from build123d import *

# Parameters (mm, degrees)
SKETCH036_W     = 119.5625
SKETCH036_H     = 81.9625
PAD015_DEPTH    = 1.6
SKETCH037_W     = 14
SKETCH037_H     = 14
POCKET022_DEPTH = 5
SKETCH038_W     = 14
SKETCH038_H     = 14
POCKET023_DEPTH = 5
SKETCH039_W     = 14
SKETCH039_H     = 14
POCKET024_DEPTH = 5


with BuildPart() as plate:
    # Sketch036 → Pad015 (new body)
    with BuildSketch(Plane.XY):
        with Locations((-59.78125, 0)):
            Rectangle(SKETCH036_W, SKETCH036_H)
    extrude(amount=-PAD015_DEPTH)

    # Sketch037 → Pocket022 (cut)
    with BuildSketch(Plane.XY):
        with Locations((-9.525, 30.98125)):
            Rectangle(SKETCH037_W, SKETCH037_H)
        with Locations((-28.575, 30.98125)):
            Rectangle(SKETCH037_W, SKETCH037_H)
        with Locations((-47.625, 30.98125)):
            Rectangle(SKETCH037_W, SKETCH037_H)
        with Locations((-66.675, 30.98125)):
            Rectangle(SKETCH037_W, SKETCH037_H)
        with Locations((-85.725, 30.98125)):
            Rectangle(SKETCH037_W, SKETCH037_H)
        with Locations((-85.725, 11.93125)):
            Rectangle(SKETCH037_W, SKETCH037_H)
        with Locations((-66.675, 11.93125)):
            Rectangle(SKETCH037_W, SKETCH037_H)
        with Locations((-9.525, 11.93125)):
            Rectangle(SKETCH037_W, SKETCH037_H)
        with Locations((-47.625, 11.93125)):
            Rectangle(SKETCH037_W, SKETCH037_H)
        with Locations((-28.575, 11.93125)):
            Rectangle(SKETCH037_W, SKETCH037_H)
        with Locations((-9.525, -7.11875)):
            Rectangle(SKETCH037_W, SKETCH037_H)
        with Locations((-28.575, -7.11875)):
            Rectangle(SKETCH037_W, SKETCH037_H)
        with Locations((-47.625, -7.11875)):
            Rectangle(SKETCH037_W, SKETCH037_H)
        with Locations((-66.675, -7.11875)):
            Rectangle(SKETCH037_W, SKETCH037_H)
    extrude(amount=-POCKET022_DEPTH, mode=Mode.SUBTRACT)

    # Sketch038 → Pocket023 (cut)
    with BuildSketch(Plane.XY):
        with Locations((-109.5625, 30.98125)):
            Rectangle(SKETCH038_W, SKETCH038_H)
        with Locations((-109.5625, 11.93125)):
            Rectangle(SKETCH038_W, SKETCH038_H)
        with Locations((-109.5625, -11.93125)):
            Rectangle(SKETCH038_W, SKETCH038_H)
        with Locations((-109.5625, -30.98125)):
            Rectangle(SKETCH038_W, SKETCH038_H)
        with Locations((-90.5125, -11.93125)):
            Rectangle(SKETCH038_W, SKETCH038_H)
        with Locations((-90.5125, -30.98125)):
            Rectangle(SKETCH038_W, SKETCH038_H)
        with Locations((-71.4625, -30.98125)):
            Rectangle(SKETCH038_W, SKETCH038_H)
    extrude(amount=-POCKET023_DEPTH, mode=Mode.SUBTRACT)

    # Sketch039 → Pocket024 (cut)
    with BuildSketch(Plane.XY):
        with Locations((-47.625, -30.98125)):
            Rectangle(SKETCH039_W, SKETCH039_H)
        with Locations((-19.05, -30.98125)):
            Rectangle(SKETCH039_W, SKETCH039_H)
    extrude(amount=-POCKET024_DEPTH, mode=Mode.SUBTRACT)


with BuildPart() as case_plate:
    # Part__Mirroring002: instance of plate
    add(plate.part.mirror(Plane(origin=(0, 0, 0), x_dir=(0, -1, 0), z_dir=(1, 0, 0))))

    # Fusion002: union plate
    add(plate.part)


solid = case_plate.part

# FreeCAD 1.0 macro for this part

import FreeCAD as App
import Part
import Sketcher
Q = App.Units.Quantity


def add_polygon(sketch, points):
    """Adds a closed chain of lines whose ends are joined by coincident constraints."""
    first, n = sketch.GeometryCount, len(points)
    for a, b in zip(points, points[1:] + points[:1]):
        sketch.addGeometry(Part.LineSegment(App.Vector(*a, 0), App.Vector(*b, 0)), False)
    for i in range(n):
        sketch.addConstraint(Sketcher.Constraint("Coincident", first + i, 2, first + (i + 1) % n, 1))

doc = App.newDocument("Part")
body = doc.addObject("PartDesign::Body", "Body")

# Sketch on XY plane
sketch1 = body.newObject("Sketcher::SketchObject", "Sketch")
sketch1.AttachmentSupport = (doc.getObject("XY_Plane"), [""])
sketch1.MapMode = "FlatFace"
add_polygon(sketch1, [(-119.5625, 40.98125), (-119.5625, -40.98125), (0, -40.98125), (0, 40.98125)])  # lines 0-3
sketch1.addConstraint([
    Sketcher.Constraint("Vertical", 0),
    Sketcher.Constraint("Horizontal", 1),
    Sketcher.Constraint("Vertical", 2),
    Sketcher.Constraint("Horizontal", 3),
    Sketcher.Constraint("Symmetric", 1, 2, 2, 2, -1, 1),
    Sketcher.Constraint("DistanceX", 1, 1, 1, 2, Q("119.5625 mm")),
    Sketcher.Constraint("DistanceY", 0, 2, 0, 1, Q("81.9625 mm")),
])
pad1 = body.newObject("PartDesign::Pad", "Pad")
pad1.Profile = sketch1
pad1.Length = 1.6
pad1.Reversed = True

# Sketch on XY plane
sketch2 = body.newObject("Sketcher::SketchObject", "Sketch001")
sketch2.AttachmentSupport = (doc.getObject("XY_Plane"), [""])
sketch2.MapMode = "FlatFace"
add_polygon(sketch2, [(-16.525, 37.98125), (-16.525, 23.98125), (-2.525, 23.98125), (-2.525, 37.98125)])  # lines 0-3
add_polygon(sketch2, [(-35.575, 37.98125), (-35.575, 23.98125), (-21.575, 23.98125), (-21.575, 37.98125)])  # lines 4-7
add_polygon(sketch2, [(-54.625, 37.98125), (-54.625, 23.98125), (-40.625, 23.98125), (-40.625, 37.98125)])  # lines 8-11
add_polygon(sketch2, [(-73.675, 37.98125), (-73.675, 23.98125), (-59.675, 23.98125), (-59.675, 37.98125)])  # lines 12-15
add_polygon(sketch2, [(-92.725, 37.98125), (-92.725, 23.98125), (-78.725, 23.98125), (-78.725, 37.98125)])  # lines 16-19
add_polygon(sketch2, [(-92.725, 18.93125), (-92.725, 4.93125), (-78.725, 4.93125), (-78.725, 18.93125)])  # lines 20-23
add_polygon(sketch2, [(-73.675, 18.93125), (-73.675, 4.93125), (-59.675, 4.93125), (-59.675, 18.93125)])  # lines 24-27
add_polygon(sketch2, [(-16.525, 18.93125), (-16.525, 4.93125), (-2.525, 4.93125), (-2.525, 18.93125)])  # lines 28-31
add_polygon(sketch2, [(-54.625, 18.93125), (-54.625, 4.93125), (-40.625, 4.93125), (-40.625, 18.93125)])  # lines 32-35
add_polygon(sketch2, [(-35.575, 18.93125), (-35.575, 4.93125), (-21.575, 4.93125), (-21.575, 18.93125)])  # lines 36-39
add_polygon(sketch2, [(-16.525, -0.11875), (-16.525, -14.11875), (-2.525, -14.11875), (-2.525, -0.11875)])  # lines 40-43
add_polygon(sketch2, [(-35.575, -0.11875), (-35.575, -14.11875), (-21.575, -14.11875), (-21.575, -0.11875)])  # lines 44-47
add_polygon(sketch2, [(-54.625, -0.11875), (-54.625, -14.11875), (-40.625, -14.11875), (-40.625, -0.11875)])  # lines 48-51
add_polygon(sketch2, [(-73.675, -0.11875), (-73.675, -14.11875), (-59.675, -14.11875), (-59.675, -0.11875)])  # lines 52-55
sketch2.addConstraint([
    Sketcher.Constraint("Vertical", 0),
    Sketcher.Constraint("Horizontal", 1),
    Sketcher.Constraint("Vertical", 2),
    Sketcher.Constraint("Horizontal", 3),
    Sketcher.Constraint("Vertical", 4),
    Sketcher.Constraint("Horizontal", 5),
    Sketcher.Constraint("Vertical", 6),
    Sketcher.Constraint("Horizontal", 7),
    Sketcher.Constraint("Vertical", 8),
    Sketcher.Constraint("Horizontal", 9),
    Sketcher.Constraint("Vertical", 10),
    Sketcher.Constraint("Horizontal", 11),
    Sketcher.Constraint("Vertical", 12),
    Sketcher.Constraint("Horizontal", 13),
    Sketcher.Constraint("Vertical", 14),
    Sketcher.Constraint("Horizontal", 15),
    Sketcher.Constraint("Vertical", 16),
    Sketcher.Constraint("Horizontal", 17),
    Sketcher.Constraint("Vertical", 18),
    Sketcher.Constraint("Horizontal", 19),
    Sketcher.Constraint("Vertical", 20),
    Sketcher.Constraint("Horizontal", 21),
    Sketcher.Constraint("Vertical", 22),
    Sketcher.Constraint("Horizontal", 23),
    Sketcher.Constraint("Vertical", 24),
    Sketcher.Constraint("Horizontal", 25),
    Sketcher.Constraint("Vertical", 26),
    Sketcher.Constraint("Horizontal", 27),
    Sketcher.Constraint("Vertical", 28),
    Sketcher.Constraint("Horizontal", 29),
    Sketcher.Constraint("Vertical", 30),
    Sketcher.Constraint("Horizontal", 31),
    Sketcher.Constraint("Vertical", 32),
    Sketcher.Constraint("Horizontal", 33),
    Sketcher.Constraint("Vertical", 34),
    Sketcher.Constraint("Horizontal", 35),
    Sketcher.Constraint("Vertical", 36),
    Sketcher.Constraint("Horizontal", 37),
    Sketcher.Constraint("Vertical", 38),
    Sketcher.Constraint("Horizontal", 39),
    Sketcher.Constraint("Vertical", 40),
    Sketcher.Constraint("Horizontal", 41),
    Sketcher.Constraint("Vertical", 42),
    Sketcher.Constraint("Horizontal", 43),
    Sketcher.Constraint("Vertical", 44),
    Sketcher.Constraint("Horizontal", 45),
    Sketcher.Constraint("Vertical", 46),
    Sketcher.Constraint("Horizontal", 47),
    Sketcher.Constraint("Vertical", 48),
    Sketcher.Constraint("Horizontal", 49),
    Sketcher.Constraint("Vertical", 50),
    Sketcher.Constraint("Horizontal", 51),
    Sketcher.Constraint("Vertical", 52),
    Sketcher.Constraint("Horizontal", 53),
    Sketcher.Constraint("Vertical", 54),
    Sketcher.Constraint("Horizontal", 55),
    Sketcher.Constraint("Horizontal", 1, 2, 4, 2),
    Sketcher.Constraint("Horizontal", 3, 2, 6, 2),
    Sketcher.Constraint("Horizontal", 5, 2, 8, 2),
    Sketcher.Constraint("Horizontal", 7, 2, 10, 2),
    Sketcher.Constraint("Horizontal", 9, 2, 12, 2),
    Sketcher.Constraint("Horizontal", 11, 2, 14, 2),
    Sketcher.Constraint("Horizontal", 13, 2, 16, 2),
    Sketcher.Constraint("Horizontal", 15, 2, 18, 2),
    Sketcher.Constraint("Horizontal", 21, 2, 24, 2),
    Sketcher.Constraint("Horizontal", 23, 2, 26, 2),
    Sketcher.Constraint("Horizontal", 25, 2, 28, 2),
    Sketcher.Constraint("Horizontal", 27, 2, 30, 2),
    Sketcher.Constraint("Horizontal", 29, 2, 32, 2),
    Sketcher.Constraint("Horizontal", 31, 2, 34, 2),
    Sketcher.Constraint("Horizontal", 33, 2, 36, 2),
    Sketcher.Constraint("Horizontal", 35, 2, 38, 2),
    Sketcher.Constraint("Horizontal", 41, 2, 44, 2),
    Sketcher.Constraint("Horizontal", 43, 2, 46, 2),
    Sketcher.Constraint("Horizontal", 45, 2, 48, 2),
    Sketcher.Constraint("Horizontal", 47, 2, 50, 2),
    Sketcher.Constraint("Horizontal", 49, 2, 52, 2),
    Sketcher.Constraint("Horizontal", 51, 2, 54, 2),
    Sketcher.Constraint("Vertical", 19, 2, 20, 2),
    Sketcher.Constraint("Vertical", 18, 2, 21, 2),
    Sketcher.Constraint("Vertical", 15, 2, 24, 2),
    Sketcher.Constraint("Vertical", 14, 2, 25, 2),
    Sketcher.Constraint("Vertical", 3, 2, 28, 2),
    Sketcher.Constraint("Vertical", 2, 2, 29, 2),
    Sketcher.Constraint("Vertical", 11, 2, 32, 2),
    Sketcher.Constraint("Vertical", 10, 2, 33, 2),
    Sketcher.Constraint("Vertical", 7, 2, 36, 2),
    Sketcher.Constraint("Vertical", 6, 2, 37, 2),
    Sketcher.Constraint("Vertical", 31, 2, 40, 2),
    Sketcher.Constraint("Vertical", 30, 2, 41, 2),
    Sketcher.Constraint("Vertical", 39, 2, 44, 2),
    Sketcher.Constraint("Vertical", 38, 2, 45, 2),
    Sketcher.Constraint("Vertical", 35, 2, 48, 2),
    Sketcher.Constraint("Vertical", 34, 2, 49, 2),
    Sketcher.Constraint("Vertical", 27, 2, 52, 2),
    Sketcher.Constraint("Vertical", 26, 2, 53, 2),
    Sketcher.Constraint("Equal", 3, 5),
    Sketcher.Constraint("Equal", 7, 9),
    Sketcher.Constraint("Equal", 11, 13),
    Sketcher.Constraint("Equal", 15, 17),
    Sketcher.Constraint("Equal", 55, 0),
    Sketcher.Constraint("Equal", 18, 20),
    Sketcher.Constraint("Equal", 38, 40),
    Sketcher.Constraint("DistanceX", 1, 1, 1, 2, Q("14 mm")),
    Sketcher.Constraint("DistanceX", 8, 2, 0, 2, Q("38.1 mm")),
    Sketcher.Constraint("DistanceX", 12, 2, 4, 2, Q("38.1 mm")),
    Sketcher.Constraint("DistanceX", 16, 2, 8, 2, Q("38.1 mm")),
    Sketcher.Constraint("DistanceX", 4, 2, 0, 2, Q("19.05 mm")),
    Sketcher.Constraint("DistanceY", 20, 2, 16, 2, Q("19.05 mm")),
    Sketcher.Constraint("DistanceY", 40, 2, 28, 2, Q("19.05 mm")),
    Sketcher.Constraint("DistanceX", 0, 2, -1, 1, Q("16.525 mm")),
    Sketcher.Constraint("DistanceY", -1, 1, 0, 2, Q("23.98125 mm")),
])
pocket1 = body.newObject("PartDesign::Pocket", "Pocket")
pocket1.Profile = sketch2
pocket1.Length = 5

# Sketch on XY plane
sketch3 = body.newObject("Sketcher::SketchObject", "Sketch002")
sketch3.AttachmentSupport = (doc.getObject("XY_Plane"), [""])
sketch3.MapMode = "FlatFace"
add_polygon(sketch3, [(-116.5625, 37.98125), (-116.5625, 23.98125), (-102.5625, 23.98125), (-102.5625, 37.98125)])  # lines 0-3
add_polygon(sketch3, [(-116.5625, 18.93125), (-116.5625, 4.93125), (-102.5625, 4.93125), (-102.5625, 18.93125)])  # lines 4-7
add_polygon(sketch3, [(-116.5625, -4.93125), (-116.5625, -18.93125), (-102.5625, -18.93125), (-102.5625, -4.93125)])  # lines 8-11
add_polygon(sketch3, [(-116.5625, -23.98125), (-116.5625, -37.98125), (-102.5625, -37.98125), (-102.5625, -23.98125)])  # lines 12-15
add_polygon(sketch3, [(-97.5125, -4.93125), (-97.5125, -18.93125), (-83.5125, -18.93125), (-83.5125, -4.93125)])  # lines 16-19
add_polygon(sketch3, [(-97.5125, -23.98125), (-97.5125, -37.98125), (-83.5125, -37.98125), (-83.5125, -23.98125)])  # lines 20-23
add_polygon(sketch3, [(-78.4625, -23.98125), (-78.4625, -37.98125), (-64.4625, -37.98125), (-64.4625, -23.98125)])  # lines 24-27
sketch3.addConstraint([
    Sketcher.Constraint("Vertical", 0),
    Sketcher.Constraint("Horizontal", 1),
    Sketcher.Constraint("Vertical", 2),
    Sketcher.Constraint("Horizontal", 3),
    Sketcher.Constraint("Vertical", 4),
    Sketcher.Constraint("Horizontal", 5),
    Sketcher.Constraint("Vertical", 6),
    Sketcher.Constraint("Horizontal", 7),
    Sketcher.Constraint("Vertical", 8),
    Sketcher.Constraint("Horizontal", 9),
    Sketcher.Constraint("Vertical", 10),
    Sketcher.Constraint("Horizontal", 11),
    Sketcher.Constraint("Vertical", 12),
    Sketcher.Constraint("Horizontal", 13),
    Sketcher.Constraint("Vertical", 14),
    Sketcher.Constraint("Horizontal", 15),
    Sketcher.Constraint("Vertical", 16),
    Sketcher.Constraint("Horizontal", 17),
    Sketcher.Constraint("Vertical", 18),
    Sketcher.Constraint("Horizontal", 19),
    Sketcher.Constraint("Vertical", 20),
    Sketcher.Constraint("Horizontal", 21),
    Sketcher.Constraint("Vertical", 22),
    Sketcher.Constraint("Horizontal", 23),
    Sketcher.Constraint("Vertical", 24),
    Sketcher.Constraint("Horizontal", 25),
    Sketcher.Constraint("Vertical", 26),
    Sketcher.Constraint("Horizontal", 27),
    Sketcher.Constraint("Symmetric", 7, 2, 8, 2, -1),
    Sketcher.Constraint("Symmetric", 5, 2, 10, 2, -1),
    Sketcher.Constraint("Symmetric", 3, 2, 12, 2, -1),
    Sketcher.Constraint("Symmetric", 1, 2, 14, 2, -1),
    Sketcher.Constraint("Horizontal", 9, 2, 16, 2),
    Sketcher.Constraint("Horizontal", 11, 2, 18, 2),
    Sketcher.Constraint("Horizontal", 13, 2, 20, 2),
    Sketcher.Constraint("Horizontal", 15, 2, 22, 2),
    Sketcher.Constraint("Horizontal", 21, 2, 24, 2),
    Sketcher.Constraint("Horizontal", 23, 2, 26, 2),
    Sketcher.Constraint("Vertical", 3, 2, 4, 2),
    Sketcher.Constraint("Vertical", 2, 2, 5, 2),
    Sketcher.Constraint("Vertical", 19, 2, 20, 2),
    Sketcher.Constraint("Vertical", 18, 2, 21, 2),
    Sketcher.Constraint("Equal", 15, 17),
    Sketcher.Constraint("Equal", 23, 25),
    Sketcher.Constraint("Equal", 27, 0),
    Sketcher.Constraint("Equal", 2, 4),
    Sketcher.Constraint("DistanceX", 1, 1, 1, 2, Q("14 mm")),
    Sketcher.Constraint("DistanceY", 4, 2, 0, 2, Q("19.05 mm")),
    Sketcher.Constraint("DistanceX", 9, 2, 16, 2, Q("5.05 mm")),
    Sketcher.Constraint("DistanceX", 21, 2, 24, 2, Q("5.05 mm")),
    Sketcher.Constraint("DistanceX", 0, 2, -1, 1, Q("116.5625 mm")),
    Sketcher.Constraint("DistanceY", 8, 2, 4, 2, Q("23.8625 mm")),
])
pocket2 = body.newObject("PartDesign::Pocket", "Pocket001")
pocket2.Profile = sketch3
pocket2.Length = 5

# Sketch on XY plane
sketch4 = body.newObject("Sketcher::SketchObject", "Sketch003")
sketch4.AttachmentSupport = (doc.getObject("XY_Plane"), [""])
sketch4.MapMode = "FlatFace"
add_polygon(sketch4, [(-54.625, -23.98125), (-54.625, -37.98125), (-40.625, -37.98125), (-40.625, -23.98125)])  # lines 0-3
add_polygon(sketch4, [(-26.05, -23.98125), (-26.05, -37.98125), (-12.05, -37.98125), (-12.05, -23.98125)])  # lines 4-7
sketch4.addConstraint([
    Sketcher.Constraint("Vertical", 0),
    Sketcher.Constraint("Horizontal", 1),
    Sketcher.Constraint("Vertical", 2),
    Sketcher.Constraint("Horizontal", 3),
    Sketcher.Constraint("Vertical", 4),
    Sketcher.Constraint("Horizontal", 5),
    Sketcher.Constraint("Vertical", 6),
    Sketcher.Constraint("Horizontal", 7),
    Sketcher.Constraint("Horizontal", 1, 2, 4, 2),
    Sketcher.Constraint("Horizontal", 3, 2, 6, 2),
    Sketcher.Constraint("Equal", 3, 5),
    Sketcher.Constraint("Equal", 7, 0),
    Sketcher.Constraint("DistanceX", 1, 1, 1, 2, Q("14 mm")),
    Sketcher.Constraint("DistanceX", 4, 2, -1, 1, Q("26.05 mm")),
    Sketcher.Constraint("DistanceX", 0, 2, -1, 1, Q("54.625 mm")),
    Sketcher.Constraint("DistanceY", 0, 2, -1, 1, Q("37.98125 mm")),
])
pocket3 = body.newObject("PartDesign::Pocket", "Pocket002")
pocket3.Profile = sketch4
pocket3.Length = 5
body2 = doc.addObject("PartDesign::Body", "Body001")
doc.recompute()

mirroring = doc.addObject("Part::Mirroring", "Mirroring")
mirroring.Source = body
mirroring.Base = App.Vector(0, 0, 0)
mirroring.Normal = App.Vector(1, 0, 0)
body2.BaseFeature = mirroring
doc.recompute()

boolean = body2.newObject("PartDesign::Boolean", "Boolean")
boolean.Type = "Fuse"
boolean.addObjects([body])
mirroring.Visibility = False

doc.recompute()
